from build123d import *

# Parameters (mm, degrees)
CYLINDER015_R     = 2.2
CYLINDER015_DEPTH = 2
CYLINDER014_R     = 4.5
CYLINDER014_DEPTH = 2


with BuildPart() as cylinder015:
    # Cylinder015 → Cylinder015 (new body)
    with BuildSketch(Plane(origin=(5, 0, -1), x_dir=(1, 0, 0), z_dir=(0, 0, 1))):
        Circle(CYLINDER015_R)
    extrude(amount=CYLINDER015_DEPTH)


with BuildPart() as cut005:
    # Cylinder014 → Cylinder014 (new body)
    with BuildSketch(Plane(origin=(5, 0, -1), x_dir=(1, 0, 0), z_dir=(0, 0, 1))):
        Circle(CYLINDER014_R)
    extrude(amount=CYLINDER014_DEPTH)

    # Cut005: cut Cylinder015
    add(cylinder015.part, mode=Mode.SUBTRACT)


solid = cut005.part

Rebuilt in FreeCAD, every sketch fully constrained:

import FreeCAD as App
import Part
import Sketcher

V = App.Vector
Q = App.Units.Quantity

doc = App.newDocument("Part")
body = doc.addObject("PartDesign::Body", "Body")

# Sketch on XY plane
sketch1 = doc.addObject("Sketcher::SketchObject", "Sketch")
body.addObject(sketch1)
sketch1.AttachmentSupport = (doc.XY_Plane, [""])
sketch1.MapMode = "FlatFace"
sketch1.AttachmentOffset = App.Placement(V(0, 0, -1), App.Rotation())
sketch1.addGeometry(Part.Circle(V(5, 0, 0), V(0, 0, 1), 2.2), False)
sketch1.addConstraint([
    Sketcher.Constraint("PointOnObject", 0, 3, -1),
    Sketcher.Constraint("Diameter", 0, Q("4.4 mm")),
    Sketcher.Constraint("DistanceX", -1, 1, 0, 3, Q("5 mm")),
])
pad1 = doc.addObject("PartDesign::Pad", "Pad")
body.addObject(pad1)
pad1.Profile = sketch1
pad1.Length = 2
body2 = doc.addObject("PartDesign::Body", "Body001")

# Sketch on XY plane
sketch2 = doc.addObject("Sketcher::SketchObject", "Sketch001")
body2.addObject(sketch2)
sketch2.AttachmentSupport = (doc.getObject("XY_Plane001"), [""])
sketch2.MapMode = "FlatFace"
sketch2.AttachmentOffset = App.Placement(V(0, 0, -1), App.Rotation())
sketch2.addGeometry(Part.Circle(V(5, 0, 0), V(0, 0, 1), 4.5), False)
sketch2.addConstraint([
    Sketcher.Constraint("PointOnObject", 0, 3, -1),
    Sketcher.Constraint("Diameter", 0, Q("9 mm")),
    Sketcher.Constraint("DistanceX", -1, 1, 0, 3, Q("5 mm")),
])
pad2 = doc.addObject("PartDesign::Pad", "Pad001")
body2.addObject(pad2)
pad2.Profile = sketch2
pad2.Length = 2
doc.recompute()

boolean = doc.addObject("PartDesign::Boolean", "Boolean")
body2.addObject(boolean)
boolean.Type = "Cut"
boolean.addObjects([body])

doc.recompute()
